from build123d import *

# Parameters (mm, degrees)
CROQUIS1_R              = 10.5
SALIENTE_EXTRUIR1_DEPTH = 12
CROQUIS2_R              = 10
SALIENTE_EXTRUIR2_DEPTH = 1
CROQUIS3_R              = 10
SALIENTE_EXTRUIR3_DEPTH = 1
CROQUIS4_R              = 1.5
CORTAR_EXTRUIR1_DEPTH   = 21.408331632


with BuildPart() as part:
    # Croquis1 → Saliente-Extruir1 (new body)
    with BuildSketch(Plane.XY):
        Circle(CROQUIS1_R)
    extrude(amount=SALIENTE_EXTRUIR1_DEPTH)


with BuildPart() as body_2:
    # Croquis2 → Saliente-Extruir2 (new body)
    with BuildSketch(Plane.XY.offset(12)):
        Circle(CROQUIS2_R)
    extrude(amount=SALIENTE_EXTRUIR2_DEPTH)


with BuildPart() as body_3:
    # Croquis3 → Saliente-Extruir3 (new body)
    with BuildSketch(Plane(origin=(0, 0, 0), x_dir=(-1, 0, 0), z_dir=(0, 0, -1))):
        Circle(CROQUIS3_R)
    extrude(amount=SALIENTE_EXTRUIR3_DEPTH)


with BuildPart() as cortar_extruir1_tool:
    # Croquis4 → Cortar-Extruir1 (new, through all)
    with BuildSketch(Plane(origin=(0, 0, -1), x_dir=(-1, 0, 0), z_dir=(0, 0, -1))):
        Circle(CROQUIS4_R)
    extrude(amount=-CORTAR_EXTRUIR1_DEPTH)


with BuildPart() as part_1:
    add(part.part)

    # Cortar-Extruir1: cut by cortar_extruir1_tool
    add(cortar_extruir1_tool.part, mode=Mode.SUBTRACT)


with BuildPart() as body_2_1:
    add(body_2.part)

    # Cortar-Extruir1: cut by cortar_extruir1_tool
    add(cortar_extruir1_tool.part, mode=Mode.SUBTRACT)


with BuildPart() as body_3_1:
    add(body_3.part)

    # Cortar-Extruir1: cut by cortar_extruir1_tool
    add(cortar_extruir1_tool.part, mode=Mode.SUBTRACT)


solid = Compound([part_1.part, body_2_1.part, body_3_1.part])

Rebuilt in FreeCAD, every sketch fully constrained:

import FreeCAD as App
import Part
import Sketcher

V = App.Vector
Q = App.Units.Quantity

doc = App.newDocument("Part")
body = doc.addObject("PartDesign::Body", "Body")

# Sketch on XY plane
sketch1 = doc.addObject("Sketcher::SketchObject", "Sketch")
body.addObject(sketch1)
sketch1.AttachmentSupport = (doc.XY_Plane, [""])
sketch1.MapMode = "FlatFace"
sketch1.addGeometry(Part.Circle(V(0, 0, 0), V(0, 0, 1), 10), False)
sketch1.addConstraint(Sketcher.Constraint("Coincident", 0, 3, -1, 1))
sketch1.addConstraint(Sketcher.Constraint("Diameter", 0, Q("21 mm")))
pad1 = doc.addObject("PartDesign::Pad", "Pad")
body.addObject(pad1)
pad1.Profile = sketch1
pad1.Length = 12
body2 = doc.addObject("PartDesign::Body", "Body001")

# Sketch on XY plane
sketch2 = doc.addObject("Sketcher::SketchObject", "Sketch001")
body2.addObject(sketch2)
sketch2.AttachmentSupport = (doc.getObject("XY_Plane001"), [""])
sketch2.MapMode = "FlatFace"
sketch2.AttachmentOffset = App.Placement(V(0, 0, 12), App.Rotation())
sketch2.addGeometry(Part.Circle(V(0, 0, 0), V(0, 0, 1), 10), False)
sketch2.addConstraint(Sketcher.Constraint("Coincident", 0, 3, -1, 1))
sketch2.addConstraint(Sketcher.Constraint("Diameter", 0, Q("20 mm")))
pad2 = doc.addObject("PartDesign::Pad", "Pad001")
body2.addObject(pad2)
pad2.Profile = sketch2
pad2.Length = 1
body3 = doc.addObject("PartDesign::Body", "Body002")

# Sketch on XY plane
sketch3 = doc.addObject("Sketcher::SketchObject", "Sketch002")
body3.addObject(sketch3)
sketch3.AttachmentSupport = (doc.getObject("XY_Plane002"), [""])
sketch3.MapMode = "FlatFace"
sketch3.addGeometry(Part.Circle(V(0, 0, 0), V(0, 0, 1), 10), False)
sketch3.addConstraint(Sketcher.Constraint("Coincident", 0, 3, -1, 1))
sketch3.addConstraint(Sketcher.Constraint("Diameter", 0, Q("20 mm")))
pad3 = doc.addObject("PartDesign::Pad", "Pad002")
body3.addObject(pad3)
pad3.Profile = sketch3
pad3.Length = 1
pad3.Reversed = True
body4 = doc.addObject("PartDesign::Body", "Body003")

# Sketch on XY plane
sketch4 = doc.addObject("Sketcher::SketchObject", "Sketch003")
body4.addObject(sketch4)
sketch4.AttachmentSupport = (doc.getObject("XY_Plane003"), [""])
sketch4.MapMode = "FlatFace"
sketch4.AttachmentOffset = App.Placement(V(0, 0, -1), App.Rotation())
sketch4.addGeometry(Part.Circle(V(0, 0, 0), V(0, 0, 1), 1.5), False)
sketch4.addConstraint(Sketcher.Constraint("Coincident", 0, 3, -1, 1))
sketch4.addConstraint(Sketcher.Constraint("Diameter", 0, Q("3 mm")))
pad4 = doc.addObject("PartDesign::Pad", "Pad003")
body4.addObject(pad4)
pad4.Profile = sketch4
pad4.Length = 21.408332
doc.recompute()

body5 = doc.addObject("PartDesign::Body", "Body004")
body5.BaseFeature = body4
boolean = doc.addObject("PartDesign::Boolean", "Boolean")
body.addObject(boolean)
boolean.Type = "Cut"
boolean.addObjects([body5])
doc.recompute()

body6 = doc.addObject("PartDesign::Body", "Body005")
body6.BaseFeature = body4
boolean2 = doc.addObject("PartDesign::Boolean", "Boolean001")
body2.addObject(boolean2)
boolean2.Type = "Cut"
boolean2.addObjects([body6])
doc.recompute()

boolean3 = doc.addObject("PartDesign::Boolean", "Boolean002")
body3.addObject(boolean3)
boolean3.Type = "Cut"
boolean3.addObjects([body4])

doc.recompute()
